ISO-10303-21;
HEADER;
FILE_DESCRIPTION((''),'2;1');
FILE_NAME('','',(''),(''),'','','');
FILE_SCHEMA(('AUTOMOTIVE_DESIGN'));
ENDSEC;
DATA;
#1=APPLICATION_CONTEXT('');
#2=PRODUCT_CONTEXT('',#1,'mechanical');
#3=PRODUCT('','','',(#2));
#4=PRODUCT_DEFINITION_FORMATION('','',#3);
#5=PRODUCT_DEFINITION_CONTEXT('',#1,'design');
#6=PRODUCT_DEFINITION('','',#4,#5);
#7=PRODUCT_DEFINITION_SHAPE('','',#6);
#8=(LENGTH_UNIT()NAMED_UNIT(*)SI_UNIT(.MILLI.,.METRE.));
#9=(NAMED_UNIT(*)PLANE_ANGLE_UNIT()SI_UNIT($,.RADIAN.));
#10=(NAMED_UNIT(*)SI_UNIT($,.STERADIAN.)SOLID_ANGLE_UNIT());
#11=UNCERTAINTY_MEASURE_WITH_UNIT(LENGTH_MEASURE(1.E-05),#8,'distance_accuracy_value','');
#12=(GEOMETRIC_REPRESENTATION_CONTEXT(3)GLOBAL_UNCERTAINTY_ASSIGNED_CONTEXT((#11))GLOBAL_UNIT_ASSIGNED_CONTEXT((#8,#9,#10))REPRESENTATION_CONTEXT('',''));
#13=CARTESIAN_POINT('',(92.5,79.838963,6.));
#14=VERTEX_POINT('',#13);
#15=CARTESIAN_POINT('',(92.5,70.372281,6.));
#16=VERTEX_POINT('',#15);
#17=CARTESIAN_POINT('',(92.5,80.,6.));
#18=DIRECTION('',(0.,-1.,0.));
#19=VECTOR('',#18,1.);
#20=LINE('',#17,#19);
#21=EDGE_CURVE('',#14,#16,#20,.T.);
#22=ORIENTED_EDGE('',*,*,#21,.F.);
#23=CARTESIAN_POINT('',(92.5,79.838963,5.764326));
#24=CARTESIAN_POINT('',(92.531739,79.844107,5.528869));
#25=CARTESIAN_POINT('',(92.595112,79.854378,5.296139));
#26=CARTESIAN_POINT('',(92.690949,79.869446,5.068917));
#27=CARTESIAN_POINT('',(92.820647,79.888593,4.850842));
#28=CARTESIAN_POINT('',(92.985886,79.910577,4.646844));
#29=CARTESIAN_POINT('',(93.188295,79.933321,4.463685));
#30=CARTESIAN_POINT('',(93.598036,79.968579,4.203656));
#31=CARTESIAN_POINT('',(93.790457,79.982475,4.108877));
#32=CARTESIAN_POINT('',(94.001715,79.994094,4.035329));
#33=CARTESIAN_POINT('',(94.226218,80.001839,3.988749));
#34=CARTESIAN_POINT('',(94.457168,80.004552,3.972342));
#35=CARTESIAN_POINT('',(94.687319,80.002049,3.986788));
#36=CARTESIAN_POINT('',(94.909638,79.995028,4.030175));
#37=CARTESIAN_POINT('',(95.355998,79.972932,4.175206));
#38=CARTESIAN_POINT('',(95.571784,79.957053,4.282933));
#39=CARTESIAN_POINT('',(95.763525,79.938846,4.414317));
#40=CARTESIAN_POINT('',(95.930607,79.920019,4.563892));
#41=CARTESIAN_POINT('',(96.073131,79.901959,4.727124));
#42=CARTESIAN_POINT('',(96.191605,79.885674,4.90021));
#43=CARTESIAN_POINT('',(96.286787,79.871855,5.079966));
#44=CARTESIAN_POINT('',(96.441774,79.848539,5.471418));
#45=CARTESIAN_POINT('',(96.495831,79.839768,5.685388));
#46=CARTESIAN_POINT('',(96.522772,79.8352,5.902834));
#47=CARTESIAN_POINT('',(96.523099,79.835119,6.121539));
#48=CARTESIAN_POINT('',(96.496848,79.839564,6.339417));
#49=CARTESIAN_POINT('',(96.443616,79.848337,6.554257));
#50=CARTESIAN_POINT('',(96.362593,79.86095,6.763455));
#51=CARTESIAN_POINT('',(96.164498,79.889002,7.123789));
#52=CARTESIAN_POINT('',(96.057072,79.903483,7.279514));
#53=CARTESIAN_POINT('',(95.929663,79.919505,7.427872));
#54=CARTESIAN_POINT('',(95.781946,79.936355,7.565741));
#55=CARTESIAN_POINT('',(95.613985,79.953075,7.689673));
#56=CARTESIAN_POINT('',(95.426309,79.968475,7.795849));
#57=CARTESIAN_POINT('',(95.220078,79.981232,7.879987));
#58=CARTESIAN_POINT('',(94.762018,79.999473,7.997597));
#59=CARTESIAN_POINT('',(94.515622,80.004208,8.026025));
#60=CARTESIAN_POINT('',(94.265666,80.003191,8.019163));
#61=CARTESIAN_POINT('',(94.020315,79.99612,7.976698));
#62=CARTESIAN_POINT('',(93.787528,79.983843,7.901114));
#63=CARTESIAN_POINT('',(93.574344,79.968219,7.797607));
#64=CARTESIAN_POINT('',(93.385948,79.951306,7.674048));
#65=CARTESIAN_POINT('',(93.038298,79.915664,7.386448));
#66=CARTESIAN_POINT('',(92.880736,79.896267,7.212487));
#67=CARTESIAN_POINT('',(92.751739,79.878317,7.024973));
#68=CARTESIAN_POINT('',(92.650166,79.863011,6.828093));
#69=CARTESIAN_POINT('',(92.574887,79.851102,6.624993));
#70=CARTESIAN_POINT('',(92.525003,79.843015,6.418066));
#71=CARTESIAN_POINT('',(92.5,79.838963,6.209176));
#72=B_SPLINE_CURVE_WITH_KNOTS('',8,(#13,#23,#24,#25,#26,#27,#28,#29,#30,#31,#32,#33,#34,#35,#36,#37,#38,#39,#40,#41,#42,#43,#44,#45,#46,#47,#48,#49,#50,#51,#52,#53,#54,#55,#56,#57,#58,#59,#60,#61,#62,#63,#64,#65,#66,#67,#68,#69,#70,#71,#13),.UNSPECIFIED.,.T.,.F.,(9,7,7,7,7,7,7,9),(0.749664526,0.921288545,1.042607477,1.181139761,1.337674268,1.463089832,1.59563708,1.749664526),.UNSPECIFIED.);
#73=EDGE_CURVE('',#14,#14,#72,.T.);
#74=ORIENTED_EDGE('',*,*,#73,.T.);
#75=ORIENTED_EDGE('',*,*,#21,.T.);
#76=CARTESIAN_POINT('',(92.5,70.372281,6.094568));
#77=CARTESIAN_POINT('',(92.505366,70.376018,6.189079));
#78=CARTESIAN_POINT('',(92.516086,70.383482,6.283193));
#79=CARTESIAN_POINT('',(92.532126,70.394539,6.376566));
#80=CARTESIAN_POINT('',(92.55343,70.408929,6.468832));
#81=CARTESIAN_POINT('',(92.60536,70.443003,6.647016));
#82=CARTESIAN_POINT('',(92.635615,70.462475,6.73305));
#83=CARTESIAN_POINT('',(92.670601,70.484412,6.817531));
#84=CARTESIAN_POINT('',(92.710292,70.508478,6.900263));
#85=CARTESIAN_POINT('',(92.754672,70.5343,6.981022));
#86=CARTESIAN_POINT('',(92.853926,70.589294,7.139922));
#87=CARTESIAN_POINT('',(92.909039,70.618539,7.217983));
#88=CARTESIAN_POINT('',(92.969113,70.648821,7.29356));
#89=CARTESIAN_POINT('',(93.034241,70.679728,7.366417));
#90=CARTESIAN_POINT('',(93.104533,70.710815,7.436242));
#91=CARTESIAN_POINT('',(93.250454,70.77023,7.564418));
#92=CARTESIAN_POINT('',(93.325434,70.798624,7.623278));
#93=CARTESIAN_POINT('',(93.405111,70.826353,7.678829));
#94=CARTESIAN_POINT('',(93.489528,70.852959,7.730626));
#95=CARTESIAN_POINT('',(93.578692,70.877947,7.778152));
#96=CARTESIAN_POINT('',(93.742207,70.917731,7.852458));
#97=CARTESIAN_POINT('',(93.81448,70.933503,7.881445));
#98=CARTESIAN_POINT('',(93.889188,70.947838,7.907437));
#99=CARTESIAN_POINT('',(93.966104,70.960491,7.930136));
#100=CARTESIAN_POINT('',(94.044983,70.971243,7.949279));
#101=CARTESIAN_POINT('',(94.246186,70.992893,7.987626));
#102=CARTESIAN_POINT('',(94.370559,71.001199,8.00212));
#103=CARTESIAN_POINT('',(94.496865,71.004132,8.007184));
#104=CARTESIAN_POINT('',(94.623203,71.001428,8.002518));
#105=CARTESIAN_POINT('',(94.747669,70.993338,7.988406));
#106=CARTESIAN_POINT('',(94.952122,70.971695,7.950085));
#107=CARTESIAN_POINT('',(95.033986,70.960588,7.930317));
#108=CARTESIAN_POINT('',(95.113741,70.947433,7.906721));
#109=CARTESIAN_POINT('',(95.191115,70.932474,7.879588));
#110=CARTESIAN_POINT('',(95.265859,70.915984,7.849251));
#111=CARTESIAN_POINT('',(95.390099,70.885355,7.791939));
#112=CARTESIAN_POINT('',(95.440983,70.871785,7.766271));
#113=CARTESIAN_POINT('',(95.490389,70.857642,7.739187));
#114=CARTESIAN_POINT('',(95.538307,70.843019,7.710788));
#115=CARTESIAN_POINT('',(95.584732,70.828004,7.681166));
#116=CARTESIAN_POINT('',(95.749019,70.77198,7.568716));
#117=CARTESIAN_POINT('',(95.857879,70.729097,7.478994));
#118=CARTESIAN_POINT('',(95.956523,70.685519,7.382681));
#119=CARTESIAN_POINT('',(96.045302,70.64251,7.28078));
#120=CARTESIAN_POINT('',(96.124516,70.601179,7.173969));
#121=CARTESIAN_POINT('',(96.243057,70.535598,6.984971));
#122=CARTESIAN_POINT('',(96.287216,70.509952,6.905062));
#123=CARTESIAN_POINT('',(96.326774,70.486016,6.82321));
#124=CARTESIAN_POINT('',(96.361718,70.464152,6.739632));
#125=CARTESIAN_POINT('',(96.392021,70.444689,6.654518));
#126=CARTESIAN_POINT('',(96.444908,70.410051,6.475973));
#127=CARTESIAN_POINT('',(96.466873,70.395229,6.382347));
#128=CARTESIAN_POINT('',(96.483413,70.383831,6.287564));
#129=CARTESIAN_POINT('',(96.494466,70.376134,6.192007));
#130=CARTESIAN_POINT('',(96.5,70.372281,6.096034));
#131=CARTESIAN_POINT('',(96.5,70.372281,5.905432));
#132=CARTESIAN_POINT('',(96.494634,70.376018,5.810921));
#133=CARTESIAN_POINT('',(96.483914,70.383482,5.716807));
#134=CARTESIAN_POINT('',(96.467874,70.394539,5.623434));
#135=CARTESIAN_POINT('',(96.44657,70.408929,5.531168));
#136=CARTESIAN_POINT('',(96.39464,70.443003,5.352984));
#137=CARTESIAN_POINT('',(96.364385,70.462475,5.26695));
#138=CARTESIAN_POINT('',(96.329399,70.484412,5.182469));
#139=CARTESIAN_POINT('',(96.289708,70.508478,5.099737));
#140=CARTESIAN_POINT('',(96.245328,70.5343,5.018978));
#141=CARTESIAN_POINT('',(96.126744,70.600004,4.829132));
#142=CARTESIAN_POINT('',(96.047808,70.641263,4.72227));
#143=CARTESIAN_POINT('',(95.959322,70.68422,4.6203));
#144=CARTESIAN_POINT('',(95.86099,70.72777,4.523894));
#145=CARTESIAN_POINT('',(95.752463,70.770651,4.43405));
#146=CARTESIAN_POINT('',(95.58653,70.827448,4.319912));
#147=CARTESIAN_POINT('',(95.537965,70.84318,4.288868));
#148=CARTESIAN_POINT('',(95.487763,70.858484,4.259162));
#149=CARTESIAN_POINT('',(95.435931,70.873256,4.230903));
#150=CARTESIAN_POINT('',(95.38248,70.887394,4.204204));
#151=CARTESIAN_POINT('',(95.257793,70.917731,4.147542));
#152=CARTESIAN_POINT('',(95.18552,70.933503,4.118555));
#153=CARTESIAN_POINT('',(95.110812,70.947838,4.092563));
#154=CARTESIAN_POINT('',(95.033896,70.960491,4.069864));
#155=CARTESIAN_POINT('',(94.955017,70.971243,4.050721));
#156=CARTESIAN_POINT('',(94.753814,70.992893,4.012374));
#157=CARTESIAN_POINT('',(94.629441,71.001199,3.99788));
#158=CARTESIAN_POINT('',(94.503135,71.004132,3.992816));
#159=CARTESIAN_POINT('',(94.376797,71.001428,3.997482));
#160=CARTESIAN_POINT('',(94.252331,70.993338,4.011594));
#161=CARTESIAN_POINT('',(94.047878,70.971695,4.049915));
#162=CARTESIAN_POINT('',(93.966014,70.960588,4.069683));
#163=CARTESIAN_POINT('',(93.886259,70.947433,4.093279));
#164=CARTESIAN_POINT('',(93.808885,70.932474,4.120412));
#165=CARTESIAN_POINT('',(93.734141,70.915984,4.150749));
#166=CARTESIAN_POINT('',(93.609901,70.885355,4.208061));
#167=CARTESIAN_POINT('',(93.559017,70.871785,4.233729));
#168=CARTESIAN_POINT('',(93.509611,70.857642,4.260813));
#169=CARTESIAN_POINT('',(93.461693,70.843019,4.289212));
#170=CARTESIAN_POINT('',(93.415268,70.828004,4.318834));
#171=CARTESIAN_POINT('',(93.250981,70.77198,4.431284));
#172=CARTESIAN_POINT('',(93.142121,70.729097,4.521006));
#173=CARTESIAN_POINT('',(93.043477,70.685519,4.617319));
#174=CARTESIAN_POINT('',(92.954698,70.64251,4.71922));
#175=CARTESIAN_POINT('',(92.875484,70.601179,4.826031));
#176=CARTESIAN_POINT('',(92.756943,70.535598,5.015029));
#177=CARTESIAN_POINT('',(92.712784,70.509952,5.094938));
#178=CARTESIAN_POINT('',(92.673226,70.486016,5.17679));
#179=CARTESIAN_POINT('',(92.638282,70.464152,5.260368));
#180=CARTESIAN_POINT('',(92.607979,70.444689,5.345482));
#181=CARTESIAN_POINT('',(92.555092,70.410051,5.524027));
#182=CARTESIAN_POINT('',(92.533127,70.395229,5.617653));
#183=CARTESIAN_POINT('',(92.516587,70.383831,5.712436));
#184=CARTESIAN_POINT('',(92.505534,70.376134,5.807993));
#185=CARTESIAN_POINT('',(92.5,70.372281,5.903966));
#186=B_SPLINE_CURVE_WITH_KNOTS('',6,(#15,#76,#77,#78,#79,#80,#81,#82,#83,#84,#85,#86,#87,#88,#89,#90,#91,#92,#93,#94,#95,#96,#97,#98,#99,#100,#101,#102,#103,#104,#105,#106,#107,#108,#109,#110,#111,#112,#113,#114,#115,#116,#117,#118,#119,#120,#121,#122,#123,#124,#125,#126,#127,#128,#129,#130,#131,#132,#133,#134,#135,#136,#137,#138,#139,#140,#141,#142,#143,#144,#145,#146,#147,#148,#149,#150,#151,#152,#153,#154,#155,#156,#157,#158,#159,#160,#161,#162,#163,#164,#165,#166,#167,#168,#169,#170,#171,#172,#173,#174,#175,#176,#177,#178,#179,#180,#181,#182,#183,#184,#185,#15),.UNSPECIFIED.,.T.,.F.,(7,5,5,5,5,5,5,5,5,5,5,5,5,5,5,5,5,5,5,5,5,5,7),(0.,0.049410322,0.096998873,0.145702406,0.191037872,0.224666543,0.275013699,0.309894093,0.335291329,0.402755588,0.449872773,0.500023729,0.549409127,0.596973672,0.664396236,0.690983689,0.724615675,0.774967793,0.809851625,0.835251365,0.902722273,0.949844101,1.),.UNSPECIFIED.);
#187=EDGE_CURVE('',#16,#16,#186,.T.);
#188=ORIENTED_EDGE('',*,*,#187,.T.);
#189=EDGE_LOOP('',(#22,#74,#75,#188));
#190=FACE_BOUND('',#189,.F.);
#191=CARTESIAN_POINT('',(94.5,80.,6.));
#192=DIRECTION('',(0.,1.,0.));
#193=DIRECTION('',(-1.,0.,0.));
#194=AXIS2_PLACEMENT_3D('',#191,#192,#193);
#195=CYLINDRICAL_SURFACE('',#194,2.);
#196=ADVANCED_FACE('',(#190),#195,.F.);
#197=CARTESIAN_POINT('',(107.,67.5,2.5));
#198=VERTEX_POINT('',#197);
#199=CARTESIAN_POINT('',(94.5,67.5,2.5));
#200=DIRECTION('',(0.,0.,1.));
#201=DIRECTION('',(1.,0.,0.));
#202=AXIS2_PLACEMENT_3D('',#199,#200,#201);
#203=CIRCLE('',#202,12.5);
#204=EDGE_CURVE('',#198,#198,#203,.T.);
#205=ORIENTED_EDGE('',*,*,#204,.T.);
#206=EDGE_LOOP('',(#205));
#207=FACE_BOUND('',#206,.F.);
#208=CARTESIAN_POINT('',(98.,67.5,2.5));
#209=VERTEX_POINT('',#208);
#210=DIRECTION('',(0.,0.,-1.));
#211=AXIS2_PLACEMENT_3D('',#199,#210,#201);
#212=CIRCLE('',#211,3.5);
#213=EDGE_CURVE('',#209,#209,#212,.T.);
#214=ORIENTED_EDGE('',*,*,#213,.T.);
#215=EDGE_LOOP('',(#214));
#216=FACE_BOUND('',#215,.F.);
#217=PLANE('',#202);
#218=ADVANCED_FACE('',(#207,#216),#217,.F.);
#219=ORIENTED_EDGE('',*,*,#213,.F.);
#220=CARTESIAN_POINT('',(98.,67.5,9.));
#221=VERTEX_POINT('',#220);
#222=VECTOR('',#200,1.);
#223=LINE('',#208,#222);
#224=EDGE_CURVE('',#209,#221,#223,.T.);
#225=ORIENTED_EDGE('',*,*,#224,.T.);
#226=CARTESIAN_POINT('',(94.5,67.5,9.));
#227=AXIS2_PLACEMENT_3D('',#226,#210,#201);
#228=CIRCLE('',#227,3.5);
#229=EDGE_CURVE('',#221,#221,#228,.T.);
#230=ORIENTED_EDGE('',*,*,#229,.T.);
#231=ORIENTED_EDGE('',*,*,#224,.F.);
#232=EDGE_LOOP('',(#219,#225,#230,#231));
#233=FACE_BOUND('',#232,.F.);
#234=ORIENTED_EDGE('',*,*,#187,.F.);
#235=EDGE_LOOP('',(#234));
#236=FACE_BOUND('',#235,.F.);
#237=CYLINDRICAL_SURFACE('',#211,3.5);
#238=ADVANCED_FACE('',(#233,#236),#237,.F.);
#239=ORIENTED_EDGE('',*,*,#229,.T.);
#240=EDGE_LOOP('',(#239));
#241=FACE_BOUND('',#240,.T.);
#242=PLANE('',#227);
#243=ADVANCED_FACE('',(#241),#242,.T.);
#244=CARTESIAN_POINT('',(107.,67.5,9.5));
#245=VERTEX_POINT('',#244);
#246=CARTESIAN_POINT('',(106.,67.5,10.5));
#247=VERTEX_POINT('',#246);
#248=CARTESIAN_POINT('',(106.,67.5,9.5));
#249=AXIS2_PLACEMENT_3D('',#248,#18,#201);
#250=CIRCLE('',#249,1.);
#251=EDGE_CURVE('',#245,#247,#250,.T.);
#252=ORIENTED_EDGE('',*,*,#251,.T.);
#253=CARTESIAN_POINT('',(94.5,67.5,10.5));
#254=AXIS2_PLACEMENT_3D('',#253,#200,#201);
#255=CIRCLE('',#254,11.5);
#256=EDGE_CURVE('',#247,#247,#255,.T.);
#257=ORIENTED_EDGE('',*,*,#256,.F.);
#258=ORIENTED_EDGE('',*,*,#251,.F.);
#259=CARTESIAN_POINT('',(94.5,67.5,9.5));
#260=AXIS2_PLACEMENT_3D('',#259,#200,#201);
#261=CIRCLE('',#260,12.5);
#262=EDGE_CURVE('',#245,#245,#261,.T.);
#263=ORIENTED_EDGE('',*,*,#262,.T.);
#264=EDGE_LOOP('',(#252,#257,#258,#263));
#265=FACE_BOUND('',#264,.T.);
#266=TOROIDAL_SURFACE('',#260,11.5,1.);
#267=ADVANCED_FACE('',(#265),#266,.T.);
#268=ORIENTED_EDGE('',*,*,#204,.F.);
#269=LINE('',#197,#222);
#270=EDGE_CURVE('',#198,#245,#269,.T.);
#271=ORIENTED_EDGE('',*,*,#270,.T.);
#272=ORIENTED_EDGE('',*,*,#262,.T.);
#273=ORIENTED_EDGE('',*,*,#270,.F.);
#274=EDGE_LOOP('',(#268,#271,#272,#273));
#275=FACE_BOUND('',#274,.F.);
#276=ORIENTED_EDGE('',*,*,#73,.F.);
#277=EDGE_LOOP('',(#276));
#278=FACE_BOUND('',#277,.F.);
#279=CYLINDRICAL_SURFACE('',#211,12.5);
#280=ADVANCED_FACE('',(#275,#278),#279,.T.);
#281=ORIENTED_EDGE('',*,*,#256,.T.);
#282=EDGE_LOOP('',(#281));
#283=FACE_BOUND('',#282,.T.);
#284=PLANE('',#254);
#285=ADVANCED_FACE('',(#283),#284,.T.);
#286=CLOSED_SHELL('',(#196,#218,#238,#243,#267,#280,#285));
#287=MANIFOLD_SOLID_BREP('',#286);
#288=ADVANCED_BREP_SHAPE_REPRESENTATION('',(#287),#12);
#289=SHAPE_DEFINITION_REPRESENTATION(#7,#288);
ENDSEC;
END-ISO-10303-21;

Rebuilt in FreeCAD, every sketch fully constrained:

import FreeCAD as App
import Part
import Sketcher
Q = App.Units.Quantity


def edges_at(feature, points):
    """Names of the edges that pass closest to the given points."""
    edges = feature.Shape.Edges
    near = lambda p: min(range(len(edges)), key=lambda i: edges[i].distToShape(Part.Vertex(*p))[0])
    return sorted({f"Edge{near(p) + 1}" for p in points})

doc = App.newDocument("Part")
body = doc.addObject("PartDesign::Body", "Body")

sketch1 = body.newObject("Sketcher::SketchObject", "Sketch")
sketch1.AttachmentSupport = (doc.getObject("XY_Plane"), [""])
sketch1.MapMode = "FlatFace"
sketch1.addGeometry(Part.Circle(App.Vector(0, 0, 0), App.Vector(0, 0, 1), 12.5), False)
sketch1.addConstraint([
    Sketcher.Constraint("Coincident", 0, 3, -1, 1),
    Sketcher.Constraint("Diameter", 0, Q("25 mm")),
])
pad1 = body.newObject("PartDesign::Pad", "Pad")
pad1.Profile = sketch1
pad1.Length = 8

sketch2 = body.newObject("Sketcher::SketchObject", "Sketch001")
sketch2.AttachmentSupport = (doc.getObject("XY_Plane"), [""])
sketch2.MapMode = "FlatFace"
sketch2.addGeometry(Part.Circle(App.Vector(0, 0, 0), App.Vector(0, 0, 1), 3.5), False)
sketch2.addConstraint([
    Sketcher.Constraint("Coincident", 0, 3, -1, 1),
    Sketcher.Constraint("Diameter", 0, Q("7 mm")),
])
pocket1 = body.newObject("PartDesign::Pocket", "Pocket")
pocket1.Profile = sketch2
pocket1.Length = 6.5
pocket1.Reversed = True
doc.recompute()

fillet = body.newObject("PartDesign::Fillet", "Fillet")
fillet.Base = (pocket1, edges_at(pocket1, [(-12.5, 0, 8)]))
fillet.Radius = 1

sketch3 = body.newObject("Sketcher::SketchObject", "Sketch002")
sketch3.AttachmentSupport = (doc.getObject("XZ_Plane"), [""])
sketch3.MapMode = "FlatFace"
sketch3.AttachmentOffset = App.Placement(App.Vector(0, 0, -12.5), App.Rotation())
sketch3.addGeometry(Part.Circle(App.Vector(0, 3.5, 0), App.Vector(0, 0, 1), 2), False)
sketch3.addConstraint([
    Sketcher.Constraint("PointOnObject", 0, 3, -2),
    Sketcher.Constraint("Diameter", 0, Q("4 mm")),
    Sketcher.Constraint("DistanceY", -1, 1, 0, 3, Q("3.5 mm")),
])
pocket2 = body.newObject("PartDesign::Pocket", "Pocket001")
pocket2.Profile = sketch3
pocket2.Length = 10
pocket2.Reversed = True
body2 = doc.addObject("PartDesign::Body", "Body001")
doc.recompute()

body.Placement = App.Placement(App.Vector(94.5, 67.5, 2.5), App.Rotation(App.Vector(0, 0, 1), 0))
boolean = body2.newObject("PartDesign::Boolean", "Boolean")
boolean.Type = "Fuse"
boolean.addObjects([body])

doc.recompute()
